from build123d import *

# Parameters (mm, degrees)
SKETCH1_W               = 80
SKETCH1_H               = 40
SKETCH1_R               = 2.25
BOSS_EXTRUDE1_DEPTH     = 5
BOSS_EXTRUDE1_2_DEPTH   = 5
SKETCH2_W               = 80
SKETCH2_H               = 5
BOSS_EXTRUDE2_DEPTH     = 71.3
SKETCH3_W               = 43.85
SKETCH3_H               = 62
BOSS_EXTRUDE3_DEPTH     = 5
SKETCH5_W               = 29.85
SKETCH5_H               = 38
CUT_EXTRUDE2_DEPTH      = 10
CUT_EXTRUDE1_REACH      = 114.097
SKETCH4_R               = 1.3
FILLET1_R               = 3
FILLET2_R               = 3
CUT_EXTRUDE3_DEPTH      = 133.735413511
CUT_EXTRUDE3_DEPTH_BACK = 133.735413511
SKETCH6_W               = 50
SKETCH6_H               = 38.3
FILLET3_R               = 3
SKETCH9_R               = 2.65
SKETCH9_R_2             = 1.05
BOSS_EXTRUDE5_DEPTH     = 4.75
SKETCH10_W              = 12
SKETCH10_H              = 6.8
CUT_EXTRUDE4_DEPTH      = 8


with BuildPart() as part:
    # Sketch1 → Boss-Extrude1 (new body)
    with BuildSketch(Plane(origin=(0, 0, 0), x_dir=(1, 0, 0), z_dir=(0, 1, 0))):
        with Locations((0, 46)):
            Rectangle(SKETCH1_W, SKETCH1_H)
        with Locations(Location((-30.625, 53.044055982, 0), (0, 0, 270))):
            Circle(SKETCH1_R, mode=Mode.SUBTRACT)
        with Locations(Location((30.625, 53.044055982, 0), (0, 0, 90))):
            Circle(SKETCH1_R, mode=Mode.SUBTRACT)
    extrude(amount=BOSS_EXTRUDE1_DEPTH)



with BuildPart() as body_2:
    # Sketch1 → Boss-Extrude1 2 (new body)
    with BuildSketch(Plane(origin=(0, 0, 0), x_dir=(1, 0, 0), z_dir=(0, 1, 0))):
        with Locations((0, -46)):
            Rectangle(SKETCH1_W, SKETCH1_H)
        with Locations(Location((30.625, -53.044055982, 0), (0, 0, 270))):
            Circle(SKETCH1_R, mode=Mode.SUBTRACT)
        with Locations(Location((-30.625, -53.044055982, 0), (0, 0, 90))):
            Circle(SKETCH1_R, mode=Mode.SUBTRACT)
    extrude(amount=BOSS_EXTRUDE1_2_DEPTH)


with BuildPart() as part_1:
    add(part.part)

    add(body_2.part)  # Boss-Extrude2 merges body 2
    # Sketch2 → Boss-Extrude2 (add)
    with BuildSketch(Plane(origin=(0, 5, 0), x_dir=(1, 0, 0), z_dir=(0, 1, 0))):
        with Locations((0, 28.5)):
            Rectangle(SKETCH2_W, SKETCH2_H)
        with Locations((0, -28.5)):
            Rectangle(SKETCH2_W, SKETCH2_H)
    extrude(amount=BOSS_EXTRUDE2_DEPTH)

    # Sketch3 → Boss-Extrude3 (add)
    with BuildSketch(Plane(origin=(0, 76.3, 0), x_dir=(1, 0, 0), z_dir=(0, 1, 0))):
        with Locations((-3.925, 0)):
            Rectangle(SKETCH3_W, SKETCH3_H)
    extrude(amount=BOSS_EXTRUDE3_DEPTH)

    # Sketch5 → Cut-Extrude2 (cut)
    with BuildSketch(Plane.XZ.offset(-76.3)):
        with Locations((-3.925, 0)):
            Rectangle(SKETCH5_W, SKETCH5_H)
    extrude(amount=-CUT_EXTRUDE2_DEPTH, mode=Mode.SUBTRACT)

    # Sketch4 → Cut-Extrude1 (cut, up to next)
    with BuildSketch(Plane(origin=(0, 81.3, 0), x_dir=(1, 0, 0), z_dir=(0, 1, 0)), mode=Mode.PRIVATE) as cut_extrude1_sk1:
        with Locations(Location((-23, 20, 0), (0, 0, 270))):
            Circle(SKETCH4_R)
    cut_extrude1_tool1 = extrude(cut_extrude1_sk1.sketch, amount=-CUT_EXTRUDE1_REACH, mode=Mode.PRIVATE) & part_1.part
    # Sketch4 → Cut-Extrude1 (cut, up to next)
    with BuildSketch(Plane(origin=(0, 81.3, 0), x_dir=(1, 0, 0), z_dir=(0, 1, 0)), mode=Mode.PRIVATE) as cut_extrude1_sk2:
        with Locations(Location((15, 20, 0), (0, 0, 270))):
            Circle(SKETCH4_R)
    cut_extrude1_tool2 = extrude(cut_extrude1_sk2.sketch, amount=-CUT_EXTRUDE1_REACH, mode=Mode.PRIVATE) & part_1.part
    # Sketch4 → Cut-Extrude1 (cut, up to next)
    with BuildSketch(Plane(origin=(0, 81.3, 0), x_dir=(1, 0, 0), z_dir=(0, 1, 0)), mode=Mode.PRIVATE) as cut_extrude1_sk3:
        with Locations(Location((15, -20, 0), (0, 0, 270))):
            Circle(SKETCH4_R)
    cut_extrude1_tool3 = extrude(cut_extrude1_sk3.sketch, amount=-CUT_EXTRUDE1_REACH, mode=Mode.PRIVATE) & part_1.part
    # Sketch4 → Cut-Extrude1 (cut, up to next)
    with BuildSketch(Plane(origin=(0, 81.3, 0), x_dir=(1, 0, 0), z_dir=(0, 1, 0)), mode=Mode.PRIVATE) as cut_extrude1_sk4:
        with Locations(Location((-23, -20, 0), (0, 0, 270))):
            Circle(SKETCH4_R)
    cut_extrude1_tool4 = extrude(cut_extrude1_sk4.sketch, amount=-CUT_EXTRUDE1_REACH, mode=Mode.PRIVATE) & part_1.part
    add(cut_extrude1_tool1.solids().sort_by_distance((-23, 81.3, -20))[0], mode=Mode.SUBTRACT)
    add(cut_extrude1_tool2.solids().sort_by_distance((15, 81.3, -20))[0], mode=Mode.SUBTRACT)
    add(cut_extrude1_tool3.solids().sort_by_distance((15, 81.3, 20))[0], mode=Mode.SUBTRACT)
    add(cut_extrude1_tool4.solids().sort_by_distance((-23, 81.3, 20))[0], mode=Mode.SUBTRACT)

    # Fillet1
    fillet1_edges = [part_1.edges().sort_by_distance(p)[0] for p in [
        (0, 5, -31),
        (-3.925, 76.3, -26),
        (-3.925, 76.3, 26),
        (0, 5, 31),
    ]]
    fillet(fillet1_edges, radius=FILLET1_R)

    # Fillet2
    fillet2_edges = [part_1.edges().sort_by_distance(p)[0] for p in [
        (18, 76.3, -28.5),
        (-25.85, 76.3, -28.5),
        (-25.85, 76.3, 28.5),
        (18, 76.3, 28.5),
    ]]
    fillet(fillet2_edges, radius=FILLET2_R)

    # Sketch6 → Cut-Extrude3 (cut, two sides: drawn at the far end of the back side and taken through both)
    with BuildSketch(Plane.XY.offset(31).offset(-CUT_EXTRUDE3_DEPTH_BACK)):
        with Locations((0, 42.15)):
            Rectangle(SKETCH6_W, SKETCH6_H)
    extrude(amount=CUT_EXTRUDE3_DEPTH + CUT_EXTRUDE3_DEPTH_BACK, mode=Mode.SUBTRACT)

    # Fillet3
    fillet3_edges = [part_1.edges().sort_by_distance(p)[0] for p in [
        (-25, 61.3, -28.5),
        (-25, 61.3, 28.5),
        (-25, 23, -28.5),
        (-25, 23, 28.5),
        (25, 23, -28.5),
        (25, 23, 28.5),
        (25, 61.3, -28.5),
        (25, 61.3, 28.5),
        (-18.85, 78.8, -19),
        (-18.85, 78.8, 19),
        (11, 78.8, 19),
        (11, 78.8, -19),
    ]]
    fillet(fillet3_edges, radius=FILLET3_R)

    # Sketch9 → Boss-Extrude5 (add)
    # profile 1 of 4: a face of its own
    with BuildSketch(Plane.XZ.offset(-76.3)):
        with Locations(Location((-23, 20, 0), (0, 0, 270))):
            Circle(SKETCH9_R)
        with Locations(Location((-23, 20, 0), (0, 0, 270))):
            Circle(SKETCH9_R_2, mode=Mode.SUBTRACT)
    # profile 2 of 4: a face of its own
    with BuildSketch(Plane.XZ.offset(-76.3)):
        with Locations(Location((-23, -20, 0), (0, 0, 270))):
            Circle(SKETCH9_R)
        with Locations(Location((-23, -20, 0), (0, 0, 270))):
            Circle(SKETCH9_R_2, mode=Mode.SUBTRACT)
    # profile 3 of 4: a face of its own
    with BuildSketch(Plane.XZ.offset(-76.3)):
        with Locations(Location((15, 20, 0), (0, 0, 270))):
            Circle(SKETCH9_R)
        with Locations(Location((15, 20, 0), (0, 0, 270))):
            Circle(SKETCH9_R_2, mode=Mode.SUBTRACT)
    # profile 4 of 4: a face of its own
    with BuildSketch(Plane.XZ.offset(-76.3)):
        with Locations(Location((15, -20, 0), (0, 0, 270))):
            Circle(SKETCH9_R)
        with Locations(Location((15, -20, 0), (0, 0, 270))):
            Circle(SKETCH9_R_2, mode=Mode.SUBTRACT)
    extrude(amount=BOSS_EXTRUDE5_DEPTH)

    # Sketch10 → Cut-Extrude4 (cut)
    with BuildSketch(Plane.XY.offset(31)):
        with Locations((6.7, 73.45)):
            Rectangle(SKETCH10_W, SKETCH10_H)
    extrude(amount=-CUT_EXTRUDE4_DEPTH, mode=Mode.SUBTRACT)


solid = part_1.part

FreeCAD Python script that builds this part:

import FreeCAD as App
import Part
import Sketcher
from FreeCAD import Vector
Q = App.Units.Quantity


def edges_at(feature, points):
    """Names of the edges that pass closest to the given points."""
    edges = feature.Shape.Edges
    near = lambda p: min(range(len(edges)), key=lambda i: edges[i].distToShape(Part.Vertex(*p))[0])
    return sorted({f"Edge{near(p) + 1}" for p in points})


def add_polygon(sketch, points):
    """Adds a closed chain of lines whose ends are joined by coincident constraints."""
    first, n = sketch.GeometryCount, len(points)
    for a, b in zip(points, points[1:] + points[:1]):
        sketch.addGeometry(Part.LineSegment(App.Vector(*a, 0), App.Vector(*b, 0)), False)
    for i in range(n):
        sketch.addConstraint(Sketcher.Constraint("Coincident", first + i, 2, first + (i + 1) % n, 1))

doc = App.newDocument("Part")
body = doc.addObject("PartDesign::Body", "Body")

sketch1 = doc.addObject("Sketcher::SketchObject", "Sketch")
body.addObject(sketch1)
sketch1.AttachmentSupport = (doc.XZ_Plane, [""])
sketch1.MapMode = "FlatFace"
add_polygon(sketch1, [(-40, -66), (-40, -26), (40, -26), (40, -66)])
sketch1.addGeometry(Part.Circle(Vector(-30.6, -53, 0), Vector(0, 0, 1), 2.2), False)
sketch1.addGeometry(Part.Circle(Vector(30.6, -53, 0), Vector(0, 0, 1), 2.2), False)
sketch1.addConstraint(Sketcher.Constraint("Vertical", 0))
sketch1.addConstraint(Sketcher.Constraint("Horizontal", 1))
sketch1.addConstraint(Sketcher.Constraint("Vertical", 2))
sketch1.addConstraint(Sketcher.Constraint("Horizontal", 3))
sketch1.addConstraint(Sketcher.Constraint("Equal", 4, 5))
sketch1.addConstraint(Sketcher.Constraint("Symmetric", 4, 3, 5, 3, -2))
sketch1.addConstraint(Sketcher.Constraint("Diameter", 4, Q("4.5 mm")))
sketch1.addConstraint(Sketcher.Constraint("DistanceX", 1, 1, 1, 2, Q("80 mm")))
sketch1.addConstraint(Sketcher.Constraint("DistanceY", 0, 1, 0, 2, Q("40 mm")))
sketch1.addConstraint(Sketcher.Constraint("DistanceX", 0, 2, -1, 1, Q("40 mm")))
sketch1.addConstraint(Sketcher.Constraint("DistanceY", 0, 2, -1, 1, Q("26 mm")))
sketch1.addConstraint(Sketcher.Constraint("DistanceX", 4, 3, 5, 3, Q("61.25 mm")))
sketch1.addConstraint(Sketcher.Constraint("DistanceY", 4, 3, -1, 1, Q("53.044056 mm")))
pad1 = doc.addObject("PartDesign::Pad", "Pad")
body.addObject(pad1)
pad1.Profile = sketch1
pad1.Length = 5
pad1.Reversed = True
body2 = doc.addObject("PartDesign::Body", "Body001")

sketch2 = doc.addObject("Sketcher::SketchObject", "Sketch001")
body2.addObject(sketch2)
sketch2.AttachmentSupport = (doc.getObject("XZ_Plane001"), [""])
sketch2.MapMode = "FlatFace"
add_polygon(sketch2, [(-40, 26), (-40, 66), (40, 66), (40, 26)])
sketch2.addGeometry(Part.Circle(Vector(-30.6, 53, 0), Vector(0, 0, 1), 2.2), False)
sketch2.addGeometry(Part.Circle(Vector(30.6, 53, 0), Vector(0, 0, 1), 2.2), False)
sketch2.addConstraint(Sketcher.Constraint("Vertical", 0))
sketch2.addConstraint(Sketcher.Constraint("Horizontal", 1))
sketch2.addConstraint(Sketcher.Constraint("Vertical", 2))
sketch2.addConstraint(Sketcher.Constraint("Horizontal", 3))
sketch2.addConstraint(Sketcher.Constraint("Equal", 4, 5))
sketch2.addConstraint(Sketcher.Constraint("Symmetric", 4, 3, 5, 3, -2))
sketch2.addConstraint(Sketcher.Constraint("Diameter", 4, Q("4.5 mm")))
sketch2.addConstraint(Sketcher.Constraint("DistanceX", 1, 1, 1, 2, Q("80 mm")))
sketch2.addConstraint(Sketcher.Constraint("DistanceY", 0, 1, 0, 2, Q("40 mm")))
sketch2.addConstraint(Sketcher.Constraint("DistanceX", 0, 2, -1, 1, Q("40 mm")))
sketch2.addConstraint(Sketcher.Constraint("DistanceY", -1, 1, 0, 2, Q("66 mm")))
sketch2.addConstraint(Sketcher.Constraint("DistanceX", 4, 3, 5, 3, Q("61.25 mm")))
sketch2.addConstraint(Sketcher.Constraint("DistanceY", -1, 1, 4, 3, Q("53.044056 mm")))
pad2 = doc.addObject("PartDesign::Pad", "Pad001")
body2.addObject(pad2)
pad2.Profile = sketch2
pad2.Length = 5
pad2.Reversed = True
body.AllowCompound = True
doc.recompute()

boolean = doc.addObject("PartDesign::Boolean", "Boolean")
body.addObject(boolean)
boolean.Type = "Fuse"
boolean.addObjects([body2])

sketch3 = doc.addObject("Sketcher::SketchObject", "Sketch002")
body.addObject(sketch3)
sketch3.AttachmentSupport = (doc.XZ_Plane, [""])
sketch3.MapMode = "FlatFace"
sketch3.AttachmentOffset = App.Placement(Vector(0, 0, -5), App.Rotation())
add_polygon(sketch3, [(-40, -31), (-40, -26), (40, -26), (40, -31)])
add_polygon(sketch3, [(-40, 26), (-40, 31), (40, 31), (40, 26)])
sketch3.addConstraint(Sketcher.Constraint("Vertical", 0))
sketch3.addConstraint(Sketcher.Constraint("Horizontal", 1))
sketch3.addConstraint(Sketcher.Constraint("Vertical", 2))
sketch3.addConstraint(Sketcher.Constraint("Horizontal", 3))
sketch3.addConstraint(Sketcher.Constraint("Vertical", 4))
sketch3.addConstraint(Sketcher.Constraint("Horizontal", 5))
sketch3.addConstraint(Sketcher.Constraint("Vertical", 6))
sketch3.addConstraint(Sketcher.Constraint("Horizontal", 7))
sketch3.addConstraint(Sketcher.Constraint("Symmetric", 2, 2, 4, 2, -1, 1))
sketch3.addConstraint(Sketcher.Constraint("Symmetric", 0, 2, 6, 2, -1, 1))
sketch3.addConstraint(Sketcher.Constraint("Vertical", 3, 2, 4, 2))
sketch3.addConstraint(Sketcher.Constraint("DistanceX", 1, 1, 1, 2, Q("80 mm")))
sketch3.addConstraint(Sketcher.Constraint("DistanceY", 0, 1, 0, 2, Q("5 mm")))
sketch3.addConstraint(Sketcher.Constraint("DistanceY", 0, 2, -1, 1, Q("26 mm")))
pad3 = doc.addObject("PartDesign::Pad", "Pad002")
body.addObject(pad3)
pad3.Profile = sketch3
pad3.Length = 71.3
pad3.Reversed = True

sketch4 = doc.addObject("Sketcher::SketchObject", "Sketch003")
body.addObject(sketch4)
sketch4.AttachmentSupport = (doc.XZ_Plane, [""])
sketch4.MapMode = "FlatFace"
sketch4.AttachmentOffset = App.Placement(Vector(0, 0, -76.3), App.Rotation())
add_polygon(sketch4, [(-26, -31), (-26, 31), (18, 31), (18, -31)])
sketch4.addConstraint(Sketcher.Constraint("Vertical", 0))
sketch4.addConstraint(Sketcher.Constraint("Horizontal", 1))
sketch4.addConstraint(Sketcher.Constraint("Vertical", 2))
sketch4.addConstraint(Sketcher.Constraint("Horizontal", 3))
sketch4.addConstraint(Sketcher.Constraint("DistanceY", 0, 1, 0, 2, Q("62 mm")))
sketch4.addConstraint(Sketcher.Constraint("DistanceY", -1, 1, 0, 2, Q("31 mm")))
sketch4.addConstraint(Sketcher.Constraint("DistanceX", -1, 1, 1, 2, Q("18 mm")))
sketch4.addConstraint(Sketcher.Constraint("DistanceX", 1, 1, 1, 2, Q("43.85 mm")))
pad4 = doc.addObject("PartDesign::Pad", "Pad003")
body.addObject(pad4)
pad4.Profile = sketch4
pad4.Length = 5
pad4.Reversed = True

sketch5 = doc.addObject("Sketcher::SketchObject", "Sketch004")
body.addObject(sketch5)
sketch5.AttachmentSupport = (doc.XZ_Plane, [""])
sketch5.MapMode = "FlatFace"
sketch5.AttachmentOffset = App.Placement(Vector(0, 0, -76.3), App.Rotation())
add_polygon(sketch5, [(-19, 19), (-19, -19), (11, -19), (11, 19)])
sketch5.addConstraint(Sketcher.Constraint("Vertical", 0))
sketch5.addConstraint(Sketcher.Constraint("Horizontal", 1))
sketch5.addConstraint(Sketcher.Constraint("Vertical", 2))
sketch5.addConstraint(Sketcher.Constraint("Horizontal", 3))
sketch5.addConstraint(Sketcher.Constraint("DistanceY", 0, 2, 0, 1, Q("38 mm")))
sketch5.addConstraint(Sketcher.Constraint("DistanceY", 0, 2, -1, 1, Q("19 mm")))
sketch5.addConstraint(Sketcher.Constraint("DistanceX", -1, 1, 1, 2, Q("11 mm")))
sketch5.addConstraint(Sketcher.Constraint("DistanceX", 1, 1, 1, 2, Q("29.85 mm")))
pocket1 = doc.addObject("PartDesign::Pocket", "Pocket")
body.addObject(pocket1)
pocket1.Profile = sketch5
pocket1.Length = 10

sketch6 = doc.addObject("Sketcher::SketchObject", "Sketch005")
body.addObject(sketch6)
sketch6.AttachmentSupport = (doc.XZ_Plane, [""])
sketch6.MapMode = "FlatFace"
sketch6.AttachmentOffset = App.Placement(Vector(0, 0, -81.3), App.Rotation())
sketch6.addGeometry(Part.Circle(Vector(-23, -20, 0), Vector(0, 0, 1), 1.3), False)
sketch6.addConstraint(Sketcher.Constraint("Diameter", 0, Q("2.6 mm")))
sketch6.addConstraint(Sketcher.Constraint("DistanceX", 0, 3, -1, 1, Q("23 mm")))
sketch6.addConstraint(Sketcher.Constraint("DistanceY", 0, 3, -1, 1, Q("20 mm")))
pocket2 = doc.addObject("PartDesign::Pocket", "Pocket001")
body.addObject(pocket2)
pocket2.Profile = sketch6
pocket2.Type = "UpToFirst"
pocket2.Reversed = True

sketch7 = doc.addObject("Sketcher::SketchObject", "Sketch006")
body.addObject(sketch7)
sketch7.AttachmentSupport = (doc.XZ_Plane, [""])
sketch7.MapMode = "FlatFace"
sketch7.AttachmentOffset = App.Placement(Vector(0, 0, -81.3), App.Rotation())
sketch7.addGeometry(Part.Circle(Vector(15, -20, 0), Vector(0, 0, 1), 1.3), False)
sketch7.addConstraint(Sketcher.Constraint("Diameter", 0, Q("2.6 mm")))
sketch7.addConstraint(Sketcher.Constraint("DistanceX", -1, 1, 0, 3, Q("15 mm")))
sketch7.addConstraint(Sketcher.Constraint("DistanceY", 0, 3, -1, 1, Q("20 mm")))
pocket3 = doc.addObject("PartDesign::Pocket", "Pocket002")
body.addObject(pocket3)
pocket3.Profile = sketch7
pocket3.Type = "UpToFirst"
pocket3.Reversed = True

sketch8 = doc.addObject("Sketcher::SketchObject", "Sketch007")
body.addObject(sketch8)
sketch8.AttachmentSupport = (doc.XZ_Plane, [""])
sketch8.MapMode = "FlatFace"
sketch8.AttachmentOffset = App.Placement(Vector(0, 0, -81.3), App.Rotation())
sketch8.addGeometry(Part.Circle(Vector(15, 20, 0), Vector(0, 0, 1), 1.3), False)
sketch8.addConstraint(Sketcher.Constraint("Diameter", 0, Q("2.6 mm")))
sketch8.addConstraint(Sketcher.Constraint("DistanceX", -1, 1, 0, 3, Q("15 mm")))
sketch8.addConstraint(Sketcher.Constraint("DistanceY", -1, 1, 0, 3, Q("20 mm")))
pocket4 = doc.addObject("PartDesign::Pocket", "Pocket003")
body.addObject(pocket4)
pocket4.Profile = sketch8
pocket4.Type = "UpToFirst"
pocket4.Reversed = True

sketch9 = doc.addObject("Sketcher::SketchObject", "Sketch008")
body.addObject(sketch9)
sketch9.AttachmentSupport = (doc.XZ_Plane, [""])
sketch9.MapMode = "FlatFace"
sketch9.AttachmentOffset = App.Placement(Vector(0, 0, -81.3), App.Rotation())
sketch9.addGeometry(Part.Circle(Vector(-23, 20, 0), Vector(0, 0, 1), 1.3), False)
sketch9.addConstraint(Sketcher.Constraint("Diameter", 0, Q("2.6 mm")))
sketch9.addConstraint(Sketcher.Constraint("DistanceX", 0, 3, -1, 1, Q("23 mm")))
sketch9.addConstraint(Sketcher.Constraint("DistanceY", -1, 1, 0, 3, Q("20 mm")))
pocket5 = doc.addObject("PartDesign::Pocket", "Pocket004")
body.addObject(pocket5)
pocket5.Profile = sketch9
pocket5.Type = "UpToFirst"
pocket5.Reversed = True
doc.recompute()

fillet = doc.addObject("PartDesign::Fillet", "Fillet")
body.addObject(fillet)
fillet.Base = (pocket5, edges_at(pocket5, [
    (0, 5, -31),
    (-3.925, 76.3, -26),
    (-3.925, 76.3, 26),
    (0, 5, 31),
]))
fillet.Radius = 3
doc.recompute()

fillet2 = doc.addObject("PartDesign::Fillet", "Fillet001")
body.addObject(fillet2)
fillet2.Base = (fillet, edges_at(fillet, [
    (18, 76.3, -28.5),
    (-25.85, 76.3, -28.5),
    (-25.85, 76.3, 28.5),
    (18, 76.3, 28.5),
]))
fillet2.Radius = 3

sketch10 = doc.addObject("Sketcher::SketchObject", "Sketch009")
body.addObject(sketch10)
sketch10.AttachmentSupport = (doc.XY_Plane, [""])
sketch10.MapMode = "FlatFace"
sketch10.AttachmentOffset = App.Placement(Vector(0, 0, 31), App.Rotation())
add_polygon(sketch10, [(-25, 61), (-25, 23), (25, 23), (25, 61)])
sketch10.addConstraint(Sketcher.Constraint("Vertical", 0))
sketch10.addConstraint(Sketcher.Constraint("Horizontal", 1))
sketch10.addConstraint(Sketcher.Constraint("Vertical", 2))
sketch10.addConstraint(Sketcher.Constraint("Horizontal", 3))
sketch10.addConstraint(Sketcher.Constraint("DistanceX", 1, 1, 1, 2, Q("50 mm")))
sketch10.addConstraint(Sketcher.Constraint("DistanceY", 0, 2, 0, 1, Q("38.3 mm")))
sketch10.addConstraint(Sketcher.Constraint("DistanceX", 0, 2, -1, 1, Q("25 mm")))
sketch10.addConstraint(Sketcher.Constraint("DistanceY", -1, 1, 0, 2, Q("23 mm")))
pocket6 = doc.addObject("PartDesign::Pocket", "Pocket005")
body.addObject(pocket6)
pocket6.Profile = sketch10
pocket6.Type = "ThroughAll"
pocket6.Midplane = True
doc.recompute()

fillet3 = doc.addObject("PartDesign::Fillet", "Fillet002")
body.addObject(fillet3)
fillet3.Base = (pocket6, edges_at(pocket6, [
    (-25, 61.3, -28.5),
    (-25, 61.3, 28.5),
    (-25, 23, -28.5),
    (-25, 23, 28.5),
    (25, 23, -28.5),
    (25, 23, 28.5),
    (25, 61.3, -28.5),
    (25, 61.3, 28.5),
    (-18.85, 78.8, -19),
    (-18.85, 78.8, 19),
    (11, 78.8, 19),
    (11, 78.8, -19),
]))
fillet3.Radius = 3

sketch11 = doc.addObject("Sketcher::SketchObject", "Sketch010")
body.addObject(sketch11)
sketch11.AttachmentSupport = (doc.XZ_Plane, [""])
sketch11.MapMode = "FlatFace"
sketch11.AttachmentOffset = App.Placement(Vector(0, 0, -76.3), App.Rotation())
sketch11.addGeometry(Part.Circle(Vector(-23, 20, 0), Vector(0, 0, 1), 2.6), False)
sketch11.addGeometry(Part.Circle(Vector(-23, 20, 0), Vector(0, 0, 1), 1.1), False)
sketch11.addGeometry(Part.Circle(Vector(-23, -20, 0), Vector(0, 0, 1), 2.6), False)
sketch11.addGeometry(Part.Circle(Vector(-23, -20, 0), Vector(0, 0, 1), 1.1), False)
sketch11.addGeometry(Part.Circle(Vector(15, 20, 0), Vector(0, 0, 1), 2.6), False)
sketch11.addGeometry(Part.Circle(Vector(15, 20, 0), Vector(0, 0, 1), 1.1), False)
sketch11.addGeometry(Part.Circle(Vector(15, -20, 0), Vector(0, 0, 1), 2.6), False)
sketch11.addGeometry(Part.Circle(Vector(15, -20, 0), Vector(0, 0, 1), 1.1), False)
sketch11.addConstraint(Sketcher.Constraint("Coincident", 1, 3, 0, 3))
sketch11.addConstraint(Sketcher.Constraint("Coincident", 3, 3, 2, 3))
sketch11.addConstraint(Sketcher.Constraint("Coincident", 5, 3, 4, 3))
sketch11.addConstraint(Sketcher.Constraint("Coincident", 7, 3, 6, 3))
sketch11.addConstraint(Sketcher.Constraint("Equal", 0, 2))
sketch11.addConstraint(Sketcher.Constraint("Equal", 1, 3))
sketch11.addConstraint(Sketcher.Constraint("Equal", 2, 4))
sketch11.addConstraint(Sketcher.Constraint("Equal", 3, 5))
sketch11.addConstraint(Sketcher.Constraint("Equal", 4, 6))
sketch11.addConstraint(Sketcher.Constraint("Equal", 5, 7))
sketch11.addConstraint(Sketcher.Constraint("Symmetric", 0, 3, 2, 3, -1))
sketch11.addConstraint(Sketcher.Constraint("Symmetric", 4, 3, 6, 3, -1))
sketch11.addConstraint(Sketcher.Constraint("Horizontal", 1, 3, 4, 3))
sketch11.addConstraint(Sketcher.Constraint("Diameter", 0, Q("5.3 mm")))
sketch11.addConstraint(Sketcher.Constraint("Diameter", 1, Q("2.1 mm")))
sketch11.addConstraint(Sketcher.Constraint("DistanceX", 0, 3, -1, 1, Q("23 mm")))
sketch11.addConstraint(Sketcher.Constraint("DistanceY", -1, 1, 0, 3, Q("20 mm")))
sketch11.addConstraint(Sketcher.Constraint("DistanceX", -1, 1, 4, 3, Q("15 mm")))
pad5 = doc.addObject("PartDesign::Pad", "Pad004")
body.addObject(pad5)
pad5.Profile = sketch11
pad5.Length = 4.75

sketch12 = doc.addObject("Sketcher::SketchObject", "Sketch011")
body.addObject(sketch12)
sketch12.AttachmentSupport = (doc.XY_Plane, [""])
sketch12.MapMode = "FlatFace"
sketch12.AttachmentOffset = App.Placement(Vector(0, 0, 31), App.Rotation())
add_polygon(sketch12, [(1, 77), (1, 70), (13, 70), (13, 77)])
sketch12.addConstraint(Sketcher.Constraint("Vertical", 0))
sketch12.addConstraint(Sketcher.Constraint("Horizontal", 1))
sketch12.addConstraint(Sketcher.Constraint("Vertical", 2))
sketch12.addConstraint(Sketcher.Constraint("Horizontal", 3))
sketch12.addConstraint(Sketcher.Constraint("DistanceX", 1, 1, 1, 2, Q("12 mm")))
sketch12.addConstraint(Sketcher.Constraint("DistanceY", 0, 2, 0, 1, Q("6.8 mm")))
sketch12.addConstraint(Sketcher.Constraint("DistanceX", -1, 1, 0, 2, Q("0.7 mm")))
sketch12.addConstraint(Sketcher.Constraint("DistanceY", -1, 1, 0, 2, Q("70.05 mm")))
pocket7 = doc.addObject("PartDesign::Pocket", "Pocket006")
body.addObject(pocket7)
pocket7.Profile = sketch12
pocket7.Length = 8

doc.recompute()
